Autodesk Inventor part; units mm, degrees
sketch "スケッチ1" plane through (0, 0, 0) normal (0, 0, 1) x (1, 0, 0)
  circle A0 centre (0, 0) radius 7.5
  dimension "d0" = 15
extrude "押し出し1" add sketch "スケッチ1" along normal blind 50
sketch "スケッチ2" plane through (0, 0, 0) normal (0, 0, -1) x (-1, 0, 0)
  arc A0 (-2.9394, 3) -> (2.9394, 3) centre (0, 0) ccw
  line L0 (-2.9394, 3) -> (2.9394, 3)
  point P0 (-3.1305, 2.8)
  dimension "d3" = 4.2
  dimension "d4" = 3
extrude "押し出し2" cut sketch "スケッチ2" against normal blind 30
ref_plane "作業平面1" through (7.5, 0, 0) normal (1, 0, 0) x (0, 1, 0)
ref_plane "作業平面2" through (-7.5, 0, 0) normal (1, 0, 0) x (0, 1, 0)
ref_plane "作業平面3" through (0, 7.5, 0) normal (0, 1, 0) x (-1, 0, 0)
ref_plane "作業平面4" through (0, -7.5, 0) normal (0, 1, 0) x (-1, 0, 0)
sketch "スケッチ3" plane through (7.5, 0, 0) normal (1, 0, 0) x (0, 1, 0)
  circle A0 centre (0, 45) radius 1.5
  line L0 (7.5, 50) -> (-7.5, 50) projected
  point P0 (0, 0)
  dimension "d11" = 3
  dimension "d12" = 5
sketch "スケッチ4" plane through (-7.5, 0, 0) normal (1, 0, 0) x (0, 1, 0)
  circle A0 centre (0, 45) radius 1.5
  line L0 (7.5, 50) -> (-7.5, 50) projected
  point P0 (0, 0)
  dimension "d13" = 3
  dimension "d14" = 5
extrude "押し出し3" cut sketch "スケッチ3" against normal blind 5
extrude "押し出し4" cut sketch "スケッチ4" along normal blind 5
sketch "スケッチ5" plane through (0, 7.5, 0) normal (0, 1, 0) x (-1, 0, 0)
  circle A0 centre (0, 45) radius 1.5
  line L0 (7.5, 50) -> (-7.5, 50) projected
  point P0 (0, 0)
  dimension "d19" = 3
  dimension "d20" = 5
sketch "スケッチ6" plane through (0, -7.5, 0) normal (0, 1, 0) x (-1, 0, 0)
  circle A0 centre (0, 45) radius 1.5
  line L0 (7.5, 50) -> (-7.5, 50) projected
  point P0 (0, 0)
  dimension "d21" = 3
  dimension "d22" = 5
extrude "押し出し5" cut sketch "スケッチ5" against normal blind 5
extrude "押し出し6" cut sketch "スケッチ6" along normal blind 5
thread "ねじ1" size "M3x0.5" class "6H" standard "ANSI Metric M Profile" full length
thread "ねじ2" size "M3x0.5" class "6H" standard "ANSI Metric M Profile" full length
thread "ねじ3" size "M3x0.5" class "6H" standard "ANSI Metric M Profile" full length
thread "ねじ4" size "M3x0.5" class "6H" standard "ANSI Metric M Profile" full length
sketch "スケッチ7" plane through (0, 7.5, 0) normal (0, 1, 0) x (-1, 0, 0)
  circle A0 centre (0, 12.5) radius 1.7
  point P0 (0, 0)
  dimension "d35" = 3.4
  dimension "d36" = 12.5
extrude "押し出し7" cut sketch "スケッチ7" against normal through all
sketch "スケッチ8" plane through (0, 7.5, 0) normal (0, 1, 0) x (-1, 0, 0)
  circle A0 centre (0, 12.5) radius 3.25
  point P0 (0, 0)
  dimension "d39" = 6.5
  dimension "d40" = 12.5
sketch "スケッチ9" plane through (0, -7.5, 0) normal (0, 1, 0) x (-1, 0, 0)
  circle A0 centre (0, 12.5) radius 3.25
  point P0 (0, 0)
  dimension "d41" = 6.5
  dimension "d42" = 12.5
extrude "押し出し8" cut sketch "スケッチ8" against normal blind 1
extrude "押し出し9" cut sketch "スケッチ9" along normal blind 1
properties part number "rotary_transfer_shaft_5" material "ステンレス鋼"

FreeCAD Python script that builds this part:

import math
import FreeCAD as App
import Part
import Sketcher

V = App.Vector

doc = App.newDocument("Part")
body = doc.addObject("PartDesign::Body", "Body")

# Sketch on XY plane
sketch1 = body.newObject("Sketcher::SketchObject", "Sketch")
sketch1.AttachmentSupport = (doc.getObject("XY_Plane"), [""])
sketch1.MapMode = "FlatFace"
sketch1.addGeometry(Part.Circle(V(0, 0, 0), V(0, 0, 1), 8), False)
sketch1.addConstraint(Sketcher.Constraint("Coincident", 0, 3, -1, 1))
sketch1.addConstraint(Sketcher.Constraint("Diameter", 0, 15.0))
pad1 = body.newObject("PartDesign::Pad", "Pad")
pad1.Profile = sketch1
pad1.Length = 50

# Sketch on XY plane
sketch2 = body.newObject("Sketcher::SketchObject", "Sketch001")
sketch2.AttachmentSupport = (doc.getObject("XY_Plane"), [""])
sketch2.MapMode = "FlatFace"
sketch2.addGeometry(Part.LineSegment(V(-2.9, 3, 0), V(2.9, 3, 0)), False)
sketch2.addGeometry(Part.ArcOfCircle(Part.Circle(V(0, 0, 0), V(0, 0, 1), 4.2), math.radians(134), math.radians(406)), False)
sketch2.addConstraint(Sketcher.Constraint("Coincident", 0, 1, 1, 1))
sketch2.addConstraint(Sketcher.Constraint("Coincident", 1, 2, 0, 2))
sketch2.addConstraint(Sketcher.Constraint("Horizontal", 0))
sketch2.addConstraint(Sketcher.Constraint("Coincident", 1, 3, -1, 1))
sketch2.addConstraint(Sketcher.Constraint("Radius", 1, 4.2))
sketch2.addConstraint(Sketcher.Constraint("DistanceY", -1, 1, 0, 1, 3.0))
pocket1 = body.newObject("PartDesign::Pocket", "Pocket")
pocket1.Profile = sketch2
pocket1.Length = 30
pocket1.Reversed = True

# Sketch on YZ plane
sketch3 = body.newObject("Sketcher::SketchObject", "Sketch002")
sketch3.AttachmentSupport = (doc.getObject("YZ_Plane"), [""])
sketch3.MapMode = "FlatFace"
sketch3.AttachmentOffset = App.Placement(V(0, 0, 7.5), App.Rotation())
sketch3.addGeometry(Part.Circle(V(0, 45, 0), V(0, 0, 1), 1.5), False)
sketch3.addConstraint(Sketcher.Constraint("PointOnObject", 0, 3, -2))
sketch3.addConstraint(Sketcher.Constraint("Diameter", 0, 3.0))
sketch3.addConstraint(Sketcher.Constraint("DistanceY", -1, 1, 0, 3, 45.0))
pocket2 = body.newObject("PartDesign::Pocket", "Pocket001")
pocket2.Profile = sketch3
pocket2.Length = 5

# Sketch on YZ plane
sketch4 = body.newObject("Sketcher::SketchObject", "Sketch003")
sketch4.AttachmentSupport = (doc.getObject("YZ_Plane"), [""])
sketch4.MapMode = "FlatFace"
sketch4.AttachmentOffset = App.Placement(V(0, 0, -7.5), App.Rotation())
sketch4.addGeometry(Part.Circle(V(0, 45, 0), V(0, 0, 1), 1.5), False)
sketch4.addConstraint(Sketcher.Constraint("PointOnObject", 0, 3, -2))
sketch4.addConstraint(Sketcher.Constraint("Diameter", 0, 3.0))
sketch4.addConstraint(Sketcher.Constraint("DistanceY", -1, 1, 0, 3, 45.0))
pocket3 = body.newObject("PartDesign::Pocket", "Pocket002")
pocket3.Profile = sketch4
pocket3.Length = 5
pocket3.Reversed = True

# Sketch on XZ plane
sketch5 = body.newObject("Sketcher::SketchObject", "Sketch004")
sketch5.AttachmentSupport = (doc.getObject("XZ_Plane"), [""])
sketch5.MapMode = "FlatFace"
sketch5.AttachmentOffset = App.Placement(V(0, 0, -7.5), App.Rotation())
sketch5.addGeometry(Part.Circle(V(0, 45, 0), V(0, 0, 1), 1.5), False)
sketch5.addConstraint(Sketcher.Constraint("PointOnObject", 0, 3, -2))
sketch5.addConstraint(Sketcher.Constraint("Diameter", 0, 3.0))
sketch5.addConstraint(Sketcher.Constraint("DistanceY", -1, 1, 0, 3, 45.0))
pocket4 = body.newObject("PartDesign::Pocket", "Pocket003")
pocket4.Profile = sketch5
pocket4.Length = 5
pocket4.Reversed = True

# Sketch on XZ plane
sketch6 = body.newObject("Sketcher::SketchObject", "Sketch005")
sketch6.AttachmentSupport = (doc.getObject("XZ_Plane"), [""])
sketch6.MapMode = "FlatFace"
sketch6.AttachmentOffset = App.Placement(V(0, 0, 7.5), App.Rotation())
sketch6.addGeometry(Part.Circle(V(0, 45, 0), V(0, 0, 1), 1.5), False)
sketch6.addConstraint(Sketcher.Constraint("PointOnObject", 0, 3, -2))
sketch6.addConstraint(Sketcher.Constraint("Diameter", 0, 3.0))
sketch6.addConstraint(Sketcher.Constraint("DistanceY", -1, 1, 0, 3, 45.0))
pocket5 = body.newObject("PartDesign::Pocket", "Pocket004")
pocket5.Profile = sketch6
pocket5.Length = 5

# Sketch on XZ plane
sketch7 = body.newObject("Sketcher::SketchObject", "Sketch006")
sketch7.AttachmentSupport = (doc.getObject("XZ_Plane"), [""])
sketch7.MapMode = "FlatFace"
sketch7.AttachmentOffset = App.Placement(V(0, 0, -7.5), App.Rotation())
sketch7.addGeometry(Part.Circle(V(0, 12.5, 0), V(0, 0, 1), 1.7), False)
sketch7.addConstraint(Sketcher.Constraint("PointOnObject", 0, 3, -2))
sketch7.addConstraint(Sketcher.Constraint("Diameter", 0, 3.4))
sketch7.addConstraint(Sketcher.Constraint("DistanceY", -1, 1, 0, 3, 12.5))
pocket6 = body.newObject("PartDesign::Pocket", "Pocket005")
pocket6.Profile = sketch7
pocket6.Type = "ThroughAll"
pocket6.Reversed = True

# Sketch on XZ plane
sketch8 = body.newObject("Sketcher::SketchObject", "Sketch007")
sketch8.AttachmentSupport = (doc.getObject("XZ_Plane"), [""])
sketch8.MapMode = "FlatFace"
sketch8.AttachmentOffset = App.Placement(V(0, 0, -7.5), App.Rotation())
sketch8.addGeometry(Part.Circle(V(0, 12.5, 0), V(0, 0, 1), 3.2), False)
sketch8.addConstraint(Sketcher.Constraint("PointOnObject", 0, 3, -2))
sketch8.addConstraint(Sketcher.Constraint("Diameter", 0, 6.5))
sketch8.addConstraint(Sketcher.Constraint("DistanceY", -1, 1, 0, 3, 12.5))
pocket7 = body.newObject("PartDesign::Pocket", "Pocket006")
pocket7.Profile = sketch8
pocket7.Length = 1
pocket7.Reversed = True

# Sketch on XZ plane
sketch9 = body.newObject("Sketcher::SketchObject", "Sketch008")
sketch9.AttachmentSupport = (doc.getObject("XZ_Plane"), [""])
sketch9.MapMode = "FlatFace"
sketch9.AttachmentOffset = App.Placement(V(0, 0, 7.5), App.Rotation())
sketch9.addGeometry(Part.Circle(V(0, 12.5, 0), V(0, 0, 1), 3.2), False)
sketch9.addConstraint(Sketcher.Constraint("PointOnObject", 0, 3, -2))
sketch9.addConstraint(Sketcher.Constraint("Diameter", 0, 6.5))
sketch9.addConstraint(Sketcher.Constraint("DistanceY", -1, 1, 0, 3, 12.5))
pocket8 = body.newObject("PartDesign::Pocket", "Pocket007")
pocket8.Profile = sketch9
pocket8.Length = 1

doc.recompute()
